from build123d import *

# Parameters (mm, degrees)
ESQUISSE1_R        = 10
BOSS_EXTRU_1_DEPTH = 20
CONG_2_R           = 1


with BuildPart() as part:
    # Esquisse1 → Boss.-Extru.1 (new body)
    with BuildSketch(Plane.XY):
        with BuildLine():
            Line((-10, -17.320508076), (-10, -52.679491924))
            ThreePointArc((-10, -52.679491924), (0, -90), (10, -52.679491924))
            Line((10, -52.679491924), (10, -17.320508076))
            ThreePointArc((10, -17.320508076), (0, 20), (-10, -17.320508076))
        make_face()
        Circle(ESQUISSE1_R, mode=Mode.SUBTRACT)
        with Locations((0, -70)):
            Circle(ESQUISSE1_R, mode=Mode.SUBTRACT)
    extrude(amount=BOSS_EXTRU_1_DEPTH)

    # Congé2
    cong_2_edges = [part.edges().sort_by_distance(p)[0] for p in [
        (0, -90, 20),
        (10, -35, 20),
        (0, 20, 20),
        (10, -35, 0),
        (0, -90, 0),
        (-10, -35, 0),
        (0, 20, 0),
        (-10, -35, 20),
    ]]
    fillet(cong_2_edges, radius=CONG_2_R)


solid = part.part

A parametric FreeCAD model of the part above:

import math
import FreeCAD as App
import Part
import Sketcher

V = App.Vector


def edges_at(feature, points):
    """Names of the edges that pass closest to the given points."""
    edges = feature.Shape.Edges
    near = lambda p: min(range(len(edges)), key=lambda i: edges[i].distToShape(Part.Vertex(*p))[0])
    return sorted({f"Edge{near(p) + 1}" for p in points})

doc = App.newDocument("Part")
params = doc.addObject("Spreadsheet::Sheet", "Params")
for row, (alias, value) in enumerate([
    ("sketch1_diameter", "20 mm"),
    ("sketch1_radius", "20 mm"),
    ("pad1_length", "20 mm"),
    ("fillet_radius", "1 mm"),
], start=1):
    params.set(f"A{row}", alias)
    params.set(f"B{row}", "=" + value)
    params.setAlias(f"B{row}", alias)

body = doc.addObject("PartDesign::Body", "Body")

# Sketch on XY plane
sketch1 = body.newObject("Sketcher::SketchObject", "Sketch")
sketch1.AttachmentSupport = (doc.getObject("XY_Plane"), [""])
sketch1.MapMode = "FlatFace"
sketch1.addGeometry([
    Part.LineSegment(V(-10, -17.320508, 0), V(-10, -52.679492, 0)),  # 0
    Part.ArcOfCircle(Part.Circle(V(0, -70, 0), V(0, 0, 1), 20), math.radians(120), math.radians(420)),  # 1
    Part.LineSegment(V(10, -52.679492, 0), V(10, -17.320508, 0)),  # 2
    Part.ArcOfCircle(Part.Circle(V(0, 0, 0), V(0, 0, 1), 20), math.radians(-60), math.radians(240)),  # 3
    Part.Circle(V(0, -70, 0), V(0, 0, 1), 10),  # 4
    Part.Circle(V(0, 0, 0), V(0, 0, 1), 10),  # 5
], False)
sketch1.addConstraint([
    Sketcher.Constraint("Coincident", 0, 2, 1, 1),
    Sketcher.Constraint("Coincident", 1, 2, 2, 1),
    Sketcher.Constraint("Coincident", 2, 2, 3, 1),
    Sketcher.Constraint("Coincident", 3, 2, 0, 1),
    Sketcher.Constraint("Vertical", 0),
    Sketcher.Constraint("Vertical", 2),
    Sketcher.Constraint("Coincident", 3, 3, -1, 1),
    Sketcher.Constraint("Coincident", 5, 3, -1, 1),
    Sketcher.Constraint("Coincident", 4, 3, 1, 3),
    Sketcher.Constraint("Equal", 1, 3),
    Sketcher.Constraint("Equal", 4, 5),
    Sketcher.Constraint("Symmetric", 0, 2, 1, 2, -2),
    Sketcher.Constraint("Diameter", 4, 20.0),
    Sketcher.Constraint("Radius", 1, 20.0),
    Sketcher.Constraint("DistanceY", 1, 3, -1, 1, 70.0),
    Sketcher.Constraint("DistanceX", 0, 2, -1, 1, 10.0),
])
sketch1.setExpression("Constraints[12]", "Params.sketch1_diameter")
sketch1.setExpression("Constraints[13]", "Params.sketch1_radius")
pad1 = body.newObject("PartDesign::Pad", "Pad")
pad1.Profile = sketch1
pad1.setExpression("Length", "Params.pad1_length")
doc.recompute()

fillet = body.newObject("PartDesign::Fillet", "Fillet")
fillet.Base = (pad1, edges_at(pad1, [
    (0, -90, 20),
    (10, -35, 20),
    (0, 20, 20),
    (10, -35, 0),
    (0, -90, 0),
    (-10, -35, 0),
    (0, 20, 0),
    (-10, -35, 20),
]))
fillet.setExpression("Radius", "Params.fillet_radius")

doc.recompute()
